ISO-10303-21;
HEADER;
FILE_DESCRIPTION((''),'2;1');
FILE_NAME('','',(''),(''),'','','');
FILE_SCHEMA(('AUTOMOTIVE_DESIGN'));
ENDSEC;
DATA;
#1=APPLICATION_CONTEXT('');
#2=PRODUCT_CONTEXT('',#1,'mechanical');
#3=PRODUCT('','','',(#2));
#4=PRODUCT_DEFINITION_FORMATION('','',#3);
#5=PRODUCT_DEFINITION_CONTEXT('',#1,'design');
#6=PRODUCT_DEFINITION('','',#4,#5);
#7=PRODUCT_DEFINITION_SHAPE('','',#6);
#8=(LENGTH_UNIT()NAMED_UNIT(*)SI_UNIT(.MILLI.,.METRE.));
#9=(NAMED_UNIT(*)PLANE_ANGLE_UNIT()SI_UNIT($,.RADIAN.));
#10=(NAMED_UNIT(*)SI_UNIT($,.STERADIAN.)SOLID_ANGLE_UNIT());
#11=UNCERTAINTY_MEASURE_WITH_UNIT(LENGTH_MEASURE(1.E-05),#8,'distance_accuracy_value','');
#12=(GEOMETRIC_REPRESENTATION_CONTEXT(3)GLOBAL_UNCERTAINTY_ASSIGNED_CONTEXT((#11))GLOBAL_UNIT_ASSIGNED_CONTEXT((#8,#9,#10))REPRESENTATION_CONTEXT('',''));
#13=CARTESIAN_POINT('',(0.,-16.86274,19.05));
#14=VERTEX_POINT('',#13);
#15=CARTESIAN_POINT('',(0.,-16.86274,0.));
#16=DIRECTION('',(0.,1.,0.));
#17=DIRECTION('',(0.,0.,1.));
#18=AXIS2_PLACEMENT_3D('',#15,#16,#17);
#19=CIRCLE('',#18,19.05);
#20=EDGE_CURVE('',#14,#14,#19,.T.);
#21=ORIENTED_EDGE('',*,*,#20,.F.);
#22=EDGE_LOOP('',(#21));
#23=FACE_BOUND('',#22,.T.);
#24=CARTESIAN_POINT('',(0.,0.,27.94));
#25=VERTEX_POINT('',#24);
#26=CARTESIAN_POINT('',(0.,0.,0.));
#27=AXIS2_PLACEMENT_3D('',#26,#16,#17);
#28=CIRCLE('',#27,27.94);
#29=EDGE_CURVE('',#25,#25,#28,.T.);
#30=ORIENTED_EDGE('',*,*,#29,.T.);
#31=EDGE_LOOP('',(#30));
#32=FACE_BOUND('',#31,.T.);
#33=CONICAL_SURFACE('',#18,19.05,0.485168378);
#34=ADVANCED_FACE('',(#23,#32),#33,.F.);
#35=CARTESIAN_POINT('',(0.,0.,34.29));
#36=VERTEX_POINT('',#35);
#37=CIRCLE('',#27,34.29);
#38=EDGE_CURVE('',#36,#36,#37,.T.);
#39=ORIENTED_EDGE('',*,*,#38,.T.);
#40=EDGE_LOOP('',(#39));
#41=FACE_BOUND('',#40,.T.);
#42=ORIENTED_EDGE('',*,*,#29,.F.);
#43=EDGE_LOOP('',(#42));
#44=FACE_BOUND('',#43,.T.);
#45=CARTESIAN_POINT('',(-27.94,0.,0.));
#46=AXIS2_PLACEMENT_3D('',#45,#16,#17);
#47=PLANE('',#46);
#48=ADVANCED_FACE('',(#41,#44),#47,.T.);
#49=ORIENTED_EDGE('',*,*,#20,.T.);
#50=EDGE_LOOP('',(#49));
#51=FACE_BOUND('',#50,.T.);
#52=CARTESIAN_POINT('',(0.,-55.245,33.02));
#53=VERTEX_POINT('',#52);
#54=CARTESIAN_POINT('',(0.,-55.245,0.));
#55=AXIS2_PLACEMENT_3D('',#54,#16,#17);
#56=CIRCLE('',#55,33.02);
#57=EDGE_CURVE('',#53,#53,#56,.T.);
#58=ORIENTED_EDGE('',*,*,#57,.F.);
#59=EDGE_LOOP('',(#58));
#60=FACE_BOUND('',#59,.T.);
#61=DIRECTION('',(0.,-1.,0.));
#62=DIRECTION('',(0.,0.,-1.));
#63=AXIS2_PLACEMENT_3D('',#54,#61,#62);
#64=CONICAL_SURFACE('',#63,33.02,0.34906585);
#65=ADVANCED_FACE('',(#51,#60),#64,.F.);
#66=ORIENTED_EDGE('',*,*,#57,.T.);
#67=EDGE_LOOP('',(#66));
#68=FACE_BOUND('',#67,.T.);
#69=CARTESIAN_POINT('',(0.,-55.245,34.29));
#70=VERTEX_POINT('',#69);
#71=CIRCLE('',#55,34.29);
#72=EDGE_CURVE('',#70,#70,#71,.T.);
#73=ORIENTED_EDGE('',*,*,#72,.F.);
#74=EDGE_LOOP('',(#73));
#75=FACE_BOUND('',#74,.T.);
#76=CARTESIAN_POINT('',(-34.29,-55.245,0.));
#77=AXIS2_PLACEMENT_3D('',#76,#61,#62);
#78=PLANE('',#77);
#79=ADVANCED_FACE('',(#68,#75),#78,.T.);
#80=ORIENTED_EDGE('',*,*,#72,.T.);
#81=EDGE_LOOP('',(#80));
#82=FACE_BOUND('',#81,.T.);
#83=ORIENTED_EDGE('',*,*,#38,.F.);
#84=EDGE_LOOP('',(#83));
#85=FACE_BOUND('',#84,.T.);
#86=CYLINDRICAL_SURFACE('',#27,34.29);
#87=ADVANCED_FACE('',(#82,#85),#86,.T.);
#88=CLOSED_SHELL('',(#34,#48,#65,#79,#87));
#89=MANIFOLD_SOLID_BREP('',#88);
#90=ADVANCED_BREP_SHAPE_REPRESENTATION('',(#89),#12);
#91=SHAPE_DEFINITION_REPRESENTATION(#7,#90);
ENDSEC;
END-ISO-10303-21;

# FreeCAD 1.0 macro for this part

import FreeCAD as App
import Part
import Sketcher

V = App.Vector
Q = App.Units.Quantity


def add_polygon(sketch, points):
    """Adds a closed chain of lines whose ends are joined by coincident constraints."""
    first, n = sketch.GeometryCount, len(points)
    for a, b in zip(points, points[1:] + points[:1]):
        sketch.addGeometry(Part.LineSegment(App.Vector(*a, 0), App.Vector(*b, 0)), False)
    for i in range(n):
        sketch.addConstraint(Sketcher.Constraint("Coincident", first + i, 2, first + (i + 1) % n, 1))

doc = App.newDocument("Part")
params = doc.addObject("Spreadsheet::Sheet", "Params")
for row, (alias, value) in enumerate([
    ("sketch1_width", "0.25 in"),
    ("sketch1_width2", "0.05 in"),
    ("sketch1_height", "2.175 in"),
    ("revolution_angle", "360 deg"),
], start=1):
    params.set(f"A{row}", alias)
    params.set(f"B{row}", "=" + value)
    params.setAlias(f"B{row}", alias)

body = doc.addObject("PartDesign::Body", "Body")

# Sketch on XY plane
sketch1 = body.newObject("Sketcher::SketchObject", "Sketch")
sketch1.AttachmentSupport = (doc.getObject("XY_Plane"), [""])
sketch1.MapMode = "FlatFace"
add_polygon(sketch1, [(-27.94, 0), (-34.29, 0), (-34.29, -55.245), (-33.02, -55.245), (-19.05, -16.86274)])  # lines 0-4
sketch1.addConstraint(Sketcher.Constraint("Horizontal", 0))
sketch1.addConstraint(Sketcher.Constraint("Vertical", 1))
sketch1.addConstraint(Sketcher.Constraint("Horizontal", 2))
sketch1.addConstraint(Sketcher.Constraint("PointOnObject", 0, 2, -1))
sketch1.addConstraint(Sketcher.Constraint("Angle", 3, Q("70 deg")))
sketch1.addConstraint(Sketcher.Constraint("DistanceX", 0, 2, 0, 1, Q("0.25 in")))
sketch1.addConstraint(Sketcher.Constraint("DistanceX", 2, 1, 2, 2, Q("0.05 in")))
sketch1.addConstraint(Sketcher.Constraint("DistanceX", 2, 2, -1, 1, Q("1.3 in")))
sketch1.addConstraint(Sketcher.Constraint("DistanceX", 0, 2, 3, 2, Q("0.6 in")))
sketch1.addConstraint(Sketcher.Constraint("DistanceY", 1, 2, 1, 1, Q("2.175 in")))
sketch1.setExpression("Constraints[10]", "Params.sketch1_width")
sketch1.setExpression("Constraints[11]", "Params.sketch1_width2")
sketch1.setExpression("Constraints[14]", "Params.sketch1_height")
revolution = body.newObject("PartDesign::Revolution", "Revolution")
revolution.Profile = sketch1
revolution.ReferenceAxis = (sketch1, ["V_Axis"])
revolution.setExpression("Angle", "Params.revolution_angle")

doc.recompute()
